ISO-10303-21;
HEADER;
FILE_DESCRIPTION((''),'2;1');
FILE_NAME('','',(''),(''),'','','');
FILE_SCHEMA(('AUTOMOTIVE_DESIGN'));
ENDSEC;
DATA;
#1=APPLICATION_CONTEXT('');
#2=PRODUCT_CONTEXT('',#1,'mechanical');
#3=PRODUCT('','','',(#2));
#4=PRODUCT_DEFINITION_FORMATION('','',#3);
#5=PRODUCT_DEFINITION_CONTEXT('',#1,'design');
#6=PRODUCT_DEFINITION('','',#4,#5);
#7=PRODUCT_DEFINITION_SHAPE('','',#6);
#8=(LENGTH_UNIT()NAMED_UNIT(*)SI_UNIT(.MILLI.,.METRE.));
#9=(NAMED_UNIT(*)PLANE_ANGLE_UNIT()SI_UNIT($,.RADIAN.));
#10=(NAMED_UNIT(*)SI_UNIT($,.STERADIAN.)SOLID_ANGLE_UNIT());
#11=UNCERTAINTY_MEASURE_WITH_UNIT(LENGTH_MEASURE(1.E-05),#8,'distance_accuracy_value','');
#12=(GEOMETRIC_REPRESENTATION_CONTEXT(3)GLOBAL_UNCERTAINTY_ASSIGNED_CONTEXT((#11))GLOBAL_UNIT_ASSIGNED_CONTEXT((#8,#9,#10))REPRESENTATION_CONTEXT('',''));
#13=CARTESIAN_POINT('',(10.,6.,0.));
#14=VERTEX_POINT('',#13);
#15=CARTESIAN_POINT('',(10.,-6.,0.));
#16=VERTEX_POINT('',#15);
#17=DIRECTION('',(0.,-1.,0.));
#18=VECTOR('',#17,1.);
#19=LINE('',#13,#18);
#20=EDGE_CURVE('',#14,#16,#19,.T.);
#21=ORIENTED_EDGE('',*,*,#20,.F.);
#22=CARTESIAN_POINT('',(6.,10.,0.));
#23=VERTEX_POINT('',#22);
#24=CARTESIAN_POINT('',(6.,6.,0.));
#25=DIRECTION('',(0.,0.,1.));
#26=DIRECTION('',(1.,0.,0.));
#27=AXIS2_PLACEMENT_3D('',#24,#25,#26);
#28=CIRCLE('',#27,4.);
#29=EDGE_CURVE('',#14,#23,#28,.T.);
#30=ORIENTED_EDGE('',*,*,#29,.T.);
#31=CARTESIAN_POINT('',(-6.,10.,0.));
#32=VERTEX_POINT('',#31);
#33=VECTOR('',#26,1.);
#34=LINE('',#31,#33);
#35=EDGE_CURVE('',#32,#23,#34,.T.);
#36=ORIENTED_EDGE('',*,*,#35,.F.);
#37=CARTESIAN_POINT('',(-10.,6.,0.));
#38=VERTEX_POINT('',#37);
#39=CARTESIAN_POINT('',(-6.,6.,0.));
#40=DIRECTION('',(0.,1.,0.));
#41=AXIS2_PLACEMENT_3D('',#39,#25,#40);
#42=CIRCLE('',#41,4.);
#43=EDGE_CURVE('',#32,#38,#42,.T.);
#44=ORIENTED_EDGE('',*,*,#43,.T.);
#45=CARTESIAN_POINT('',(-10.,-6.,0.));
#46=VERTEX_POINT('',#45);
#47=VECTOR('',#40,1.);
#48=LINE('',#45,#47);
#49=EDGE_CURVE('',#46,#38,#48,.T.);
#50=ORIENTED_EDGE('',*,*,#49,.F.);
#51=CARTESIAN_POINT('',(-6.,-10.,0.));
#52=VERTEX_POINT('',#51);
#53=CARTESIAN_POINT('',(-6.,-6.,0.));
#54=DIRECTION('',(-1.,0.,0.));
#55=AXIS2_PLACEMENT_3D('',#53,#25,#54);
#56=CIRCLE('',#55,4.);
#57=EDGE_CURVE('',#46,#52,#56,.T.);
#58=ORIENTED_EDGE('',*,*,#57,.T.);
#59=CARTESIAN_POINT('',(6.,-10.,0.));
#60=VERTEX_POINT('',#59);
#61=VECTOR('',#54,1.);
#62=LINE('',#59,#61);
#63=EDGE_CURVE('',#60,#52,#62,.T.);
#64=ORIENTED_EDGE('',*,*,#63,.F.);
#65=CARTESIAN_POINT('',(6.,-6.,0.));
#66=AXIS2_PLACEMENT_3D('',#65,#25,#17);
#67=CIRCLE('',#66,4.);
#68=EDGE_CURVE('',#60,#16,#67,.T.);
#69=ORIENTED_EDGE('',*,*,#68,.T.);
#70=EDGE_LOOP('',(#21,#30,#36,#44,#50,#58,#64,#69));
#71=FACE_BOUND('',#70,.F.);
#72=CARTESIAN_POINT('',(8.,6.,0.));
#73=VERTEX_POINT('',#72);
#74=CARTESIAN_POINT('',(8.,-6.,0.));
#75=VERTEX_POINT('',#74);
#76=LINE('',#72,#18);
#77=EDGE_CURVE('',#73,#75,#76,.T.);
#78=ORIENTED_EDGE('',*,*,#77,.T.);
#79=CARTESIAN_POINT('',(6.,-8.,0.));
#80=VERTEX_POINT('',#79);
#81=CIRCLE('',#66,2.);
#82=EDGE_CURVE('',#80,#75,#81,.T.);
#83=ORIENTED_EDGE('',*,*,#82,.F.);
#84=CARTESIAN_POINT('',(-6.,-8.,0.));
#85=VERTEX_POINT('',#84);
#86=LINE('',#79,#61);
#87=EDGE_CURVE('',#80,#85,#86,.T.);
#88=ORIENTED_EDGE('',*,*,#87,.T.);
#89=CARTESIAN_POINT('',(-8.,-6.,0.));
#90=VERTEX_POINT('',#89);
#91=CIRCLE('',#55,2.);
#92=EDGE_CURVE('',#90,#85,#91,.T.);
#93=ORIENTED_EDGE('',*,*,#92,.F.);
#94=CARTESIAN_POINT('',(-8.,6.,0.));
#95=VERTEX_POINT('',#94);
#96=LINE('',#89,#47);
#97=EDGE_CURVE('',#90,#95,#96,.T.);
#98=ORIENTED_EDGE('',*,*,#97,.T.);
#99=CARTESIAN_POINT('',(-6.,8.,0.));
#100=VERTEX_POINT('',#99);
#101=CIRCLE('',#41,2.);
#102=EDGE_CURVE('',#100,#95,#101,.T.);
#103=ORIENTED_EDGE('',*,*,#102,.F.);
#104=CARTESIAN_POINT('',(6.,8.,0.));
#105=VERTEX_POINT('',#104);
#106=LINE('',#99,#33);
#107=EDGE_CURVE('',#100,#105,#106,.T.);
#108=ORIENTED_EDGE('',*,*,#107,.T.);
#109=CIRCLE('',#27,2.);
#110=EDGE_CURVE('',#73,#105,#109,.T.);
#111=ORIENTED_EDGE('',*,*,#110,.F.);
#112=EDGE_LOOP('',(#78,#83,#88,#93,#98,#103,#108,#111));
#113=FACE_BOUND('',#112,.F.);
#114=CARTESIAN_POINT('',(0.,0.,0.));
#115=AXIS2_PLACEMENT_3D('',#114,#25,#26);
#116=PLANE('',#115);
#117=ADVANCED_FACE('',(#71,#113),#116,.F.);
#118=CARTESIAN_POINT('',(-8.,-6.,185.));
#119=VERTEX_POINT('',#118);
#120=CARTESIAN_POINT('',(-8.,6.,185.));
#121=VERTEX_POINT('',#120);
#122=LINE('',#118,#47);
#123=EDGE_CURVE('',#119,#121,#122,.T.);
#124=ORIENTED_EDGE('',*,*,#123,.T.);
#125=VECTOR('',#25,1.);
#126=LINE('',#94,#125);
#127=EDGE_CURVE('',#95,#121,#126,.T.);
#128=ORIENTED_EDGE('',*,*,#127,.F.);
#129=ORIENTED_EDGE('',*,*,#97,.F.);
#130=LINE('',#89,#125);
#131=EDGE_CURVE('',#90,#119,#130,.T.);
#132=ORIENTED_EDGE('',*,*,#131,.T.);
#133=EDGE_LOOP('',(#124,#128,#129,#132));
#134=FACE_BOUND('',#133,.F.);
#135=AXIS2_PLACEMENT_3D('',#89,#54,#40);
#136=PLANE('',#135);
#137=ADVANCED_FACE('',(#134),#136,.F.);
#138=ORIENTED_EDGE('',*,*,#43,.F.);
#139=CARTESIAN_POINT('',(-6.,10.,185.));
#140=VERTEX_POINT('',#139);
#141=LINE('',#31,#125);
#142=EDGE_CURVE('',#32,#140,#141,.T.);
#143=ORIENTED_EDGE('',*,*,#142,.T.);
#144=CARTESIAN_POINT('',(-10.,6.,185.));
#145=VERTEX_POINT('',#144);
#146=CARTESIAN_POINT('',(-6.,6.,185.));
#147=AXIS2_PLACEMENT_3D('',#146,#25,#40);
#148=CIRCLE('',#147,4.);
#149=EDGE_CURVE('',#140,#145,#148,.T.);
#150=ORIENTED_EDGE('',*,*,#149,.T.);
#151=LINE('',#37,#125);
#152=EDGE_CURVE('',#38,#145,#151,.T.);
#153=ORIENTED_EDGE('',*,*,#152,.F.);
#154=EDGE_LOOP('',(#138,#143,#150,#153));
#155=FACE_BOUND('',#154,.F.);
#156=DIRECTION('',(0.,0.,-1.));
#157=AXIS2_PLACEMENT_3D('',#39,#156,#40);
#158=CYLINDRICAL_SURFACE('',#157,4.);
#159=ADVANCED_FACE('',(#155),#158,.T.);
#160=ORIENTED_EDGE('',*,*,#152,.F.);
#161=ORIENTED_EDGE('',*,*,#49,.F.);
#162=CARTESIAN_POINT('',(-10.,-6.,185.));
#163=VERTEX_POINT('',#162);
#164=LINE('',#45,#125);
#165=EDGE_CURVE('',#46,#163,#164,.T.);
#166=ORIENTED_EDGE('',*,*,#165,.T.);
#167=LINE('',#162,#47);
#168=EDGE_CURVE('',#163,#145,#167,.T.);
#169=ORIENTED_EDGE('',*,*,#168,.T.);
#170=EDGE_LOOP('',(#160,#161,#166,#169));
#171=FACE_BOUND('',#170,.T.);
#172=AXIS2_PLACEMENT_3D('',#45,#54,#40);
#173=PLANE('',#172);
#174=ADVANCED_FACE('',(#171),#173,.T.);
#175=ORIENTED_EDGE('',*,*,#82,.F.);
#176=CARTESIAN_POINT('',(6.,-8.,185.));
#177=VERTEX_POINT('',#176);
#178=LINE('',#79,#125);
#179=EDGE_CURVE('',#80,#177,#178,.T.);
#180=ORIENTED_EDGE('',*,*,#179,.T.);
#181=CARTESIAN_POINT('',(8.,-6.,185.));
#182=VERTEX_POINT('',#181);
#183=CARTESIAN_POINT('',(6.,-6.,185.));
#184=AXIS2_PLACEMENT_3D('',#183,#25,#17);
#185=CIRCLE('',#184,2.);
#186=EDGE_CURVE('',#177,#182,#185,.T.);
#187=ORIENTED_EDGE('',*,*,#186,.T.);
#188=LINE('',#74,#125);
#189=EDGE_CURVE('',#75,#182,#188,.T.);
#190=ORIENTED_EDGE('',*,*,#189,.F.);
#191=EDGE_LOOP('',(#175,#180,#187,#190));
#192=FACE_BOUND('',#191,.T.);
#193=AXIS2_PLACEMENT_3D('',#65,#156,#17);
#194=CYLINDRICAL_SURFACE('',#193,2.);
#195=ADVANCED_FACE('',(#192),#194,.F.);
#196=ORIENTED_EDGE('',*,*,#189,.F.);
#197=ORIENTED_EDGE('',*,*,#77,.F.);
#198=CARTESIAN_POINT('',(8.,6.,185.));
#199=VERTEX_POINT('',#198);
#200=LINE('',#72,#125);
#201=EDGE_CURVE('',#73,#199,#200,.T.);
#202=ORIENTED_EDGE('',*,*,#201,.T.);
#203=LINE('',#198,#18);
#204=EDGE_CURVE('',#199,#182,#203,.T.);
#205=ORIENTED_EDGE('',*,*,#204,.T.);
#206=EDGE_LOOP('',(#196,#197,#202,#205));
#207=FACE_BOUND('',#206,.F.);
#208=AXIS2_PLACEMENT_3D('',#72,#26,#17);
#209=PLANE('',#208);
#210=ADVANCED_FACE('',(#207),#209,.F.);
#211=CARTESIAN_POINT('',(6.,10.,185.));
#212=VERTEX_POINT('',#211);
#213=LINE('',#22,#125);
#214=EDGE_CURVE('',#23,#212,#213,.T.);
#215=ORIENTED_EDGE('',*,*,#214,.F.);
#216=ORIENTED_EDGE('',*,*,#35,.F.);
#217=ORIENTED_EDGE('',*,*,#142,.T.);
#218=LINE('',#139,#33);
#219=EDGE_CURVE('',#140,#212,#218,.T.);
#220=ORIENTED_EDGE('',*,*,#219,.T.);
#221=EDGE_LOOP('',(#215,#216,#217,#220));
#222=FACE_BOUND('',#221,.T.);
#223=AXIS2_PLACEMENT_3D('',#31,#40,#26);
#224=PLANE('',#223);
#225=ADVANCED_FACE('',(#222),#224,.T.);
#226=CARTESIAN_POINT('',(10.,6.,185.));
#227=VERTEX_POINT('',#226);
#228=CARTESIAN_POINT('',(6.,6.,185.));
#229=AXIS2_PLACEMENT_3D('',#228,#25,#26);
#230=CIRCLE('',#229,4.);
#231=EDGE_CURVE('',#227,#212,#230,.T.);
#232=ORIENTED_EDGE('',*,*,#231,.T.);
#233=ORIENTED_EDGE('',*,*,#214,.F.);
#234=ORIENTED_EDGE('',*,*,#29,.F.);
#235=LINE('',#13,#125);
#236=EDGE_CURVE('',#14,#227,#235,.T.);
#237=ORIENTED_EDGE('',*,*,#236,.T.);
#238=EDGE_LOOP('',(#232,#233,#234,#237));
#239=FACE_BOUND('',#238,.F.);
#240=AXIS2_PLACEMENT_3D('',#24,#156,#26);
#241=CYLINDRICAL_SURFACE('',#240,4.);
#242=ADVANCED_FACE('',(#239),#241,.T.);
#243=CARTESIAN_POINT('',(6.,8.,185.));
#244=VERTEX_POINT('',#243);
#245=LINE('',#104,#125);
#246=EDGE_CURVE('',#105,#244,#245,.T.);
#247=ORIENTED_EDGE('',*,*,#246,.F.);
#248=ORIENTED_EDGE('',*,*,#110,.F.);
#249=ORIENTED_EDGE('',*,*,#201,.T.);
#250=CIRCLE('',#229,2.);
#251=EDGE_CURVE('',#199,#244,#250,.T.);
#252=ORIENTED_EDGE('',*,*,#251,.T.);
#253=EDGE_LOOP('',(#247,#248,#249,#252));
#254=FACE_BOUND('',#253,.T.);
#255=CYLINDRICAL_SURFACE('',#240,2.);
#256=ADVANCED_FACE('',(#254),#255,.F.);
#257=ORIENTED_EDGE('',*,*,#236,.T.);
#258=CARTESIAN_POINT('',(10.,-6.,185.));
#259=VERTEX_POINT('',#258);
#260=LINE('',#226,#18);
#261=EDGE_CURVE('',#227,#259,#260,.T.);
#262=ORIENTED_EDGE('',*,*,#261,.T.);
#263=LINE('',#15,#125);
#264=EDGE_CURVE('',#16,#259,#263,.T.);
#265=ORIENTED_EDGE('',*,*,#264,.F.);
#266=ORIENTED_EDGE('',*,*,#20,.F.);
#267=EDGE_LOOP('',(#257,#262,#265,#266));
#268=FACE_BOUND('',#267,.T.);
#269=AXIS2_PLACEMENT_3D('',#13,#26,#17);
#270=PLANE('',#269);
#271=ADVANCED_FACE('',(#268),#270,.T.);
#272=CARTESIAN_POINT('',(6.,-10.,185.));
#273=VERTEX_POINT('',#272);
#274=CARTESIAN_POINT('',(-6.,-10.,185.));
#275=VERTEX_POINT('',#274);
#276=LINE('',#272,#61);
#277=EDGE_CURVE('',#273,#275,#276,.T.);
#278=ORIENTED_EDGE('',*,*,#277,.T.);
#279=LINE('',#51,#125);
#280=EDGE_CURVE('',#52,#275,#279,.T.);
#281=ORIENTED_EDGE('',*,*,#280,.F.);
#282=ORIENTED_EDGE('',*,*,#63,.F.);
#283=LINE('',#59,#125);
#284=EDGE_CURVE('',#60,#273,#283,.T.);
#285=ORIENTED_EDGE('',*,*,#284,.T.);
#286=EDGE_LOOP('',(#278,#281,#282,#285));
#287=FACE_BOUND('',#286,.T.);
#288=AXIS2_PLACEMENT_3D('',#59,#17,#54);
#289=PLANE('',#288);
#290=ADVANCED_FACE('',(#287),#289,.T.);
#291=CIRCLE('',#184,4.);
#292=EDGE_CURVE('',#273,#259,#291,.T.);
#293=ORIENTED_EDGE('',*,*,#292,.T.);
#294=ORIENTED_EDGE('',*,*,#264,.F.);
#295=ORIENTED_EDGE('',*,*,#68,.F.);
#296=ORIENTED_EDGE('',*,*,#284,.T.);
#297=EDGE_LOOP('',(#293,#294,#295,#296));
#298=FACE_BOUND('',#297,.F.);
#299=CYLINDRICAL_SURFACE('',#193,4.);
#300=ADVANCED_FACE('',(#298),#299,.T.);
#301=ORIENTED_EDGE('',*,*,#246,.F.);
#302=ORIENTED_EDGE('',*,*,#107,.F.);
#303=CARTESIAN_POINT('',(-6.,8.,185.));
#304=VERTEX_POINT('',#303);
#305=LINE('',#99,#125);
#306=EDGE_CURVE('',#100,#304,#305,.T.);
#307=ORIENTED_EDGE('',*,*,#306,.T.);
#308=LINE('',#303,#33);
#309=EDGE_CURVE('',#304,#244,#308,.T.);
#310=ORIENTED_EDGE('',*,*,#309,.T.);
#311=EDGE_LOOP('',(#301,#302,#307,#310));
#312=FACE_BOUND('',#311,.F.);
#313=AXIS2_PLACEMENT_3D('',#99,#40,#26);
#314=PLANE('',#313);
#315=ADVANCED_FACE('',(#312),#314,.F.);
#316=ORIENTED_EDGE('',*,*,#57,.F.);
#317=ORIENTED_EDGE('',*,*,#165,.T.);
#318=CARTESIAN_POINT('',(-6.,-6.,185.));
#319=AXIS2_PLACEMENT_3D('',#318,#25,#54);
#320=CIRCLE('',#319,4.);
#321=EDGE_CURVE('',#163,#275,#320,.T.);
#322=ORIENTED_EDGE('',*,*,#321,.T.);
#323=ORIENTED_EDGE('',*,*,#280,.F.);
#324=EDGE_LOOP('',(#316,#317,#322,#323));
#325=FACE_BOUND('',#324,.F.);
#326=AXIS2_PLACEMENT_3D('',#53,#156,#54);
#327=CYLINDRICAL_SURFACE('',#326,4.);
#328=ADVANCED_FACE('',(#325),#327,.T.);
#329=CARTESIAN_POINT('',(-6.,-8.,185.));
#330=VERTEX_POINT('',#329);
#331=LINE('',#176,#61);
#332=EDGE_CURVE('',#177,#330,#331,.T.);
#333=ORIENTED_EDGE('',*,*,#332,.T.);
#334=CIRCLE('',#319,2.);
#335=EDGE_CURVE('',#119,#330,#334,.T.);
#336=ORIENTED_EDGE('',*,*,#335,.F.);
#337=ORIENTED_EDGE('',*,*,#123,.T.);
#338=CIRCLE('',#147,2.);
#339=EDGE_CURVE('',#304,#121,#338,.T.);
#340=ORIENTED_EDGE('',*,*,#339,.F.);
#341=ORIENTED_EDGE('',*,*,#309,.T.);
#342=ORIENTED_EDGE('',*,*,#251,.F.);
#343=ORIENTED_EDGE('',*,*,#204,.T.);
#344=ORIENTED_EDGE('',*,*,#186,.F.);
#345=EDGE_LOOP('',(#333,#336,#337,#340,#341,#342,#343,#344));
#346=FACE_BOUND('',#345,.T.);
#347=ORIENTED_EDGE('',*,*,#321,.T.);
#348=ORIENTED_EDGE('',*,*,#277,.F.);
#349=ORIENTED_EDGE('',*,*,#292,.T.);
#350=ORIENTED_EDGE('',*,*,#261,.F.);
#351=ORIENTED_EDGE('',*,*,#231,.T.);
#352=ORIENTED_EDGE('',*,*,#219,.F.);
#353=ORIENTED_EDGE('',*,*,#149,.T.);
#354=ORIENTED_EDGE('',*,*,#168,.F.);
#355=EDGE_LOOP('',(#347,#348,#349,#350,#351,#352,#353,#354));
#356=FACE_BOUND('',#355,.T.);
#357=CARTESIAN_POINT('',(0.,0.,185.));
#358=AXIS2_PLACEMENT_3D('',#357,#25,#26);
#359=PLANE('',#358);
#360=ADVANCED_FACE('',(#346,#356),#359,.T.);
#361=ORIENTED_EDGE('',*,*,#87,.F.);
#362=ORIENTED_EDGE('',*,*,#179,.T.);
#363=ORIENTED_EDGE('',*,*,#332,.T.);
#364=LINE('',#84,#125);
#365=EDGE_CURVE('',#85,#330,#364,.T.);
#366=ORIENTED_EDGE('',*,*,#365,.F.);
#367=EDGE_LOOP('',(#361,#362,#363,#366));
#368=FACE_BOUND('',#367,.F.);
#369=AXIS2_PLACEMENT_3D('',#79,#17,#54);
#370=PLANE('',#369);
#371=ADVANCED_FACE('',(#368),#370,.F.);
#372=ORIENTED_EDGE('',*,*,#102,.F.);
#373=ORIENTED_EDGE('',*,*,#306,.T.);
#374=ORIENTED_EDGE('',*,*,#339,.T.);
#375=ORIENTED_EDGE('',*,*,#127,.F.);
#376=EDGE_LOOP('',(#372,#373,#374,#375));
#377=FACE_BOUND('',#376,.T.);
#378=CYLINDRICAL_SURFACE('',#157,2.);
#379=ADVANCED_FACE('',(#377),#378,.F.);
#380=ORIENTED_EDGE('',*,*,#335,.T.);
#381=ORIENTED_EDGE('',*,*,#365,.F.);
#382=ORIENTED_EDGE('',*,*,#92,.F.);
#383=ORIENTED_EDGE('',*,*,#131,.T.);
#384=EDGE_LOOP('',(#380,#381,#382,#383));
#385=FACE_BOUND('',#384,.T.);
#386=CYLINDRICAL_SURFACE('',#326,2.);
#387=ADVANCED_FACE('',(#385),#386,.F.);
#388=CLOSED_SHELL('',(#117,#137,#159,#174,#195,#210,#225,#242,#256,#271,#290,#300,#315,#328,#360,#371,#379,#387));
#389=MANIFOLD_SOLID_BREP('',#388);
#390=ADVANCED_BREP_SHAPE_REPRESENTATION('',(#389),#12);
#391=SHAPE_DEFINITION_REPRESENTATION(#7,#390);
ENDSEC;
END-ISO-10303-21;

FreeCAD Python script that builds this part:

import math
import FreeCAD as App
import Part
import Sketcher
from FreeCAD import Vector

doc = App.newDocument("Part")
body = doc.addObject("PartDesign::Body", "Body")

# Sketch on XY plane
sketch1 = doc.addObject("Sketcher::SketchObject", "Sketch")
body.addObject(sketch1)
sketch1.AttachmentSupport = (doc.XY_Plane, [""])
sketch1.MapMode = "FlatFace"
sketch1.addGeometry([
    Part.LineSegment(Vector(-10, 6, 0), Vector(-10, -6, 0)),  # 0
    Part.ArcOfCircle(Part.Circle(Vector(-6, -6, 0), Vector(0, 0, 1), 4), math.radians(180), math.radians(270)),  # 1
    Part.LineSegment(Vector(-6, -10, 0), Vector(6, -10, 0)),  # 2
    Part.ArcOfCircle(Part.Circle(Vector(6, -6, 0), Vector(0, 0, 1), 4), math.radians(-90), math.radians(0)),  # 3
    Part.LineSegment(Vector(10, -6, 0), Vector(10, 6, 0)),  # 4
    Part.ArcOfCircle(Part.Circle(Vector(6, 6, 0), Vector(0, 0, 1), 4), math.radians(0), math.radians(90)),  # 5
    Part.LineSegment(Vector(6, 10, 0), Vector(-6, 10, 0)),  # 6
    Part.ArcOfCircle(Part.Circle(Vector(-6, 6, 0), Vector(0, 0, 1), 4), math.radians(90), math.radians(180)),  # 7
    Part.ArcOfCircle(Part.Circle(Vector(-6, 6, 0), Vector(0, 0, 1), 2), math.radians(90), math.radians(180)),  # 8
    Part.LineSegment(Vector(-6, 8, 0), Vector(6, 8, 0)),  # 9
    Part.ArcOfCircle(Part.Circle(Vector(6, 6, 0), Vector(0, 0, 1), 2), math.radians(0), math.radians(90)),  # 10
    Part.LineSegment(Vector(8, 6, 0), Vector(8, -6, 0)),  # 11
    Part.ArcOfCircle(Part.Circle(Vector(6, -6, 0), Vector(0, 0, 1), 2), math.radians(-90), math.radians(0)),  # 12
    Part.LineSegment(Vector(6, -8, 0), Vector(-6, -8, 0)),  # 13
    Part.ArcOfCircle(Part.Circle(Vector(-6, -6, 0), Vector(0, 0, 1), 2), math.radians(180), math.radians(270)),  # 14
    Part.LineSegment(Vector(-8, -6, 0), Vector(-8, 6, 0)),  # 15
], False)
sketch1.addConstraint([
    Sketcher.Constraint("Tangent", 0, 2, 1, 1),
    Sketcher.Constraint("Tangent", 1, 2, 2, 1),
    Sketcher.Constraint("Tangent", 2, 2, 3, 1),
    Sketcher.Constraint("Tangent", 3, 2, 4, 1),
    Sketcher.Constraint("Tangent", 4, 2, 5, 1),
    Sketcher.Constraint("Tangent", 5, 2, 6, 1),
    Sketcher.Constraint("Tangent", 6, 2, 7, 1),
    Sketcher.Constraint("Tangent", 7, 2, 0, 1),
    Sketcher.Constraint("Tangent", 8, 1, 9, 1),
    Sketcher.Constraint("Tangent", 9, 2, 10, 2),
    Sketcher.Constraint("Tangent", 10, 1, 11, 1),
    Sketcher.Constraint("Tangent", 11, 2, 12, 2),
    Sketcher.Constraint("Tangent", 12, 1, 13, 1),
    Sketcher.Constraint("Tangent", 13, 2, 14, 2),
    Sketcher.Constraint("Tangent", 14, 1, 15, 1),
    Sketcher.Constraint("Tangent", 15, 2, 8, 2),
    Sketcher.Constraint("Vertical", 0),
    Sketcher.Constraint("Horizontal", 2),
    Sketcher.Constraint("Vertical", 4),
    Sketcher.Constraint("Horizontal", 6),
    Sketcher.Constraint("Horizontal", 9),
    Sketcher.Constraint("Vertical", 11),
    Sketcher.Constraint("Horizontal", 13),
    Sketcher.Constraint("Vertical", 15),
    Sketcher.Constraint("Coincident", 8, 3, 7, 3),
    Sketcher.Constraint("Coincident", 10, 3, 5, 3),
    Sketcher.Constraint("Coincident", 12, 3, 3, 3),
    Sketcher.Constraint("Equal", 1, 3),
    Sketcher.Constraint("Equal", 3, 5),
    Sketcher.Constraint("Equal", 5, 7),
    Sketcher.Constraint("Equal", 12, 14),
    Sketcher.Constraint("Symmetric", 1, 3, 5, 3, -1, 1),
    Sketcher.Constraint("Equal", 13, 0),
    Sketcher.Constraint("Radius", 1, 4.0),
    Sketcher.Constraint("Radius", 8, 2.0),
    Sketcher.Constraint("DistanceX", 0, 2, -1, 1, 10.0),
])
pad1 = doc.addObject("PartDesign::Pad", "Pad")
body.addObject(pad1)
pad1.Profile = sketch1
pad1.Length = 185

doc.recompute()
